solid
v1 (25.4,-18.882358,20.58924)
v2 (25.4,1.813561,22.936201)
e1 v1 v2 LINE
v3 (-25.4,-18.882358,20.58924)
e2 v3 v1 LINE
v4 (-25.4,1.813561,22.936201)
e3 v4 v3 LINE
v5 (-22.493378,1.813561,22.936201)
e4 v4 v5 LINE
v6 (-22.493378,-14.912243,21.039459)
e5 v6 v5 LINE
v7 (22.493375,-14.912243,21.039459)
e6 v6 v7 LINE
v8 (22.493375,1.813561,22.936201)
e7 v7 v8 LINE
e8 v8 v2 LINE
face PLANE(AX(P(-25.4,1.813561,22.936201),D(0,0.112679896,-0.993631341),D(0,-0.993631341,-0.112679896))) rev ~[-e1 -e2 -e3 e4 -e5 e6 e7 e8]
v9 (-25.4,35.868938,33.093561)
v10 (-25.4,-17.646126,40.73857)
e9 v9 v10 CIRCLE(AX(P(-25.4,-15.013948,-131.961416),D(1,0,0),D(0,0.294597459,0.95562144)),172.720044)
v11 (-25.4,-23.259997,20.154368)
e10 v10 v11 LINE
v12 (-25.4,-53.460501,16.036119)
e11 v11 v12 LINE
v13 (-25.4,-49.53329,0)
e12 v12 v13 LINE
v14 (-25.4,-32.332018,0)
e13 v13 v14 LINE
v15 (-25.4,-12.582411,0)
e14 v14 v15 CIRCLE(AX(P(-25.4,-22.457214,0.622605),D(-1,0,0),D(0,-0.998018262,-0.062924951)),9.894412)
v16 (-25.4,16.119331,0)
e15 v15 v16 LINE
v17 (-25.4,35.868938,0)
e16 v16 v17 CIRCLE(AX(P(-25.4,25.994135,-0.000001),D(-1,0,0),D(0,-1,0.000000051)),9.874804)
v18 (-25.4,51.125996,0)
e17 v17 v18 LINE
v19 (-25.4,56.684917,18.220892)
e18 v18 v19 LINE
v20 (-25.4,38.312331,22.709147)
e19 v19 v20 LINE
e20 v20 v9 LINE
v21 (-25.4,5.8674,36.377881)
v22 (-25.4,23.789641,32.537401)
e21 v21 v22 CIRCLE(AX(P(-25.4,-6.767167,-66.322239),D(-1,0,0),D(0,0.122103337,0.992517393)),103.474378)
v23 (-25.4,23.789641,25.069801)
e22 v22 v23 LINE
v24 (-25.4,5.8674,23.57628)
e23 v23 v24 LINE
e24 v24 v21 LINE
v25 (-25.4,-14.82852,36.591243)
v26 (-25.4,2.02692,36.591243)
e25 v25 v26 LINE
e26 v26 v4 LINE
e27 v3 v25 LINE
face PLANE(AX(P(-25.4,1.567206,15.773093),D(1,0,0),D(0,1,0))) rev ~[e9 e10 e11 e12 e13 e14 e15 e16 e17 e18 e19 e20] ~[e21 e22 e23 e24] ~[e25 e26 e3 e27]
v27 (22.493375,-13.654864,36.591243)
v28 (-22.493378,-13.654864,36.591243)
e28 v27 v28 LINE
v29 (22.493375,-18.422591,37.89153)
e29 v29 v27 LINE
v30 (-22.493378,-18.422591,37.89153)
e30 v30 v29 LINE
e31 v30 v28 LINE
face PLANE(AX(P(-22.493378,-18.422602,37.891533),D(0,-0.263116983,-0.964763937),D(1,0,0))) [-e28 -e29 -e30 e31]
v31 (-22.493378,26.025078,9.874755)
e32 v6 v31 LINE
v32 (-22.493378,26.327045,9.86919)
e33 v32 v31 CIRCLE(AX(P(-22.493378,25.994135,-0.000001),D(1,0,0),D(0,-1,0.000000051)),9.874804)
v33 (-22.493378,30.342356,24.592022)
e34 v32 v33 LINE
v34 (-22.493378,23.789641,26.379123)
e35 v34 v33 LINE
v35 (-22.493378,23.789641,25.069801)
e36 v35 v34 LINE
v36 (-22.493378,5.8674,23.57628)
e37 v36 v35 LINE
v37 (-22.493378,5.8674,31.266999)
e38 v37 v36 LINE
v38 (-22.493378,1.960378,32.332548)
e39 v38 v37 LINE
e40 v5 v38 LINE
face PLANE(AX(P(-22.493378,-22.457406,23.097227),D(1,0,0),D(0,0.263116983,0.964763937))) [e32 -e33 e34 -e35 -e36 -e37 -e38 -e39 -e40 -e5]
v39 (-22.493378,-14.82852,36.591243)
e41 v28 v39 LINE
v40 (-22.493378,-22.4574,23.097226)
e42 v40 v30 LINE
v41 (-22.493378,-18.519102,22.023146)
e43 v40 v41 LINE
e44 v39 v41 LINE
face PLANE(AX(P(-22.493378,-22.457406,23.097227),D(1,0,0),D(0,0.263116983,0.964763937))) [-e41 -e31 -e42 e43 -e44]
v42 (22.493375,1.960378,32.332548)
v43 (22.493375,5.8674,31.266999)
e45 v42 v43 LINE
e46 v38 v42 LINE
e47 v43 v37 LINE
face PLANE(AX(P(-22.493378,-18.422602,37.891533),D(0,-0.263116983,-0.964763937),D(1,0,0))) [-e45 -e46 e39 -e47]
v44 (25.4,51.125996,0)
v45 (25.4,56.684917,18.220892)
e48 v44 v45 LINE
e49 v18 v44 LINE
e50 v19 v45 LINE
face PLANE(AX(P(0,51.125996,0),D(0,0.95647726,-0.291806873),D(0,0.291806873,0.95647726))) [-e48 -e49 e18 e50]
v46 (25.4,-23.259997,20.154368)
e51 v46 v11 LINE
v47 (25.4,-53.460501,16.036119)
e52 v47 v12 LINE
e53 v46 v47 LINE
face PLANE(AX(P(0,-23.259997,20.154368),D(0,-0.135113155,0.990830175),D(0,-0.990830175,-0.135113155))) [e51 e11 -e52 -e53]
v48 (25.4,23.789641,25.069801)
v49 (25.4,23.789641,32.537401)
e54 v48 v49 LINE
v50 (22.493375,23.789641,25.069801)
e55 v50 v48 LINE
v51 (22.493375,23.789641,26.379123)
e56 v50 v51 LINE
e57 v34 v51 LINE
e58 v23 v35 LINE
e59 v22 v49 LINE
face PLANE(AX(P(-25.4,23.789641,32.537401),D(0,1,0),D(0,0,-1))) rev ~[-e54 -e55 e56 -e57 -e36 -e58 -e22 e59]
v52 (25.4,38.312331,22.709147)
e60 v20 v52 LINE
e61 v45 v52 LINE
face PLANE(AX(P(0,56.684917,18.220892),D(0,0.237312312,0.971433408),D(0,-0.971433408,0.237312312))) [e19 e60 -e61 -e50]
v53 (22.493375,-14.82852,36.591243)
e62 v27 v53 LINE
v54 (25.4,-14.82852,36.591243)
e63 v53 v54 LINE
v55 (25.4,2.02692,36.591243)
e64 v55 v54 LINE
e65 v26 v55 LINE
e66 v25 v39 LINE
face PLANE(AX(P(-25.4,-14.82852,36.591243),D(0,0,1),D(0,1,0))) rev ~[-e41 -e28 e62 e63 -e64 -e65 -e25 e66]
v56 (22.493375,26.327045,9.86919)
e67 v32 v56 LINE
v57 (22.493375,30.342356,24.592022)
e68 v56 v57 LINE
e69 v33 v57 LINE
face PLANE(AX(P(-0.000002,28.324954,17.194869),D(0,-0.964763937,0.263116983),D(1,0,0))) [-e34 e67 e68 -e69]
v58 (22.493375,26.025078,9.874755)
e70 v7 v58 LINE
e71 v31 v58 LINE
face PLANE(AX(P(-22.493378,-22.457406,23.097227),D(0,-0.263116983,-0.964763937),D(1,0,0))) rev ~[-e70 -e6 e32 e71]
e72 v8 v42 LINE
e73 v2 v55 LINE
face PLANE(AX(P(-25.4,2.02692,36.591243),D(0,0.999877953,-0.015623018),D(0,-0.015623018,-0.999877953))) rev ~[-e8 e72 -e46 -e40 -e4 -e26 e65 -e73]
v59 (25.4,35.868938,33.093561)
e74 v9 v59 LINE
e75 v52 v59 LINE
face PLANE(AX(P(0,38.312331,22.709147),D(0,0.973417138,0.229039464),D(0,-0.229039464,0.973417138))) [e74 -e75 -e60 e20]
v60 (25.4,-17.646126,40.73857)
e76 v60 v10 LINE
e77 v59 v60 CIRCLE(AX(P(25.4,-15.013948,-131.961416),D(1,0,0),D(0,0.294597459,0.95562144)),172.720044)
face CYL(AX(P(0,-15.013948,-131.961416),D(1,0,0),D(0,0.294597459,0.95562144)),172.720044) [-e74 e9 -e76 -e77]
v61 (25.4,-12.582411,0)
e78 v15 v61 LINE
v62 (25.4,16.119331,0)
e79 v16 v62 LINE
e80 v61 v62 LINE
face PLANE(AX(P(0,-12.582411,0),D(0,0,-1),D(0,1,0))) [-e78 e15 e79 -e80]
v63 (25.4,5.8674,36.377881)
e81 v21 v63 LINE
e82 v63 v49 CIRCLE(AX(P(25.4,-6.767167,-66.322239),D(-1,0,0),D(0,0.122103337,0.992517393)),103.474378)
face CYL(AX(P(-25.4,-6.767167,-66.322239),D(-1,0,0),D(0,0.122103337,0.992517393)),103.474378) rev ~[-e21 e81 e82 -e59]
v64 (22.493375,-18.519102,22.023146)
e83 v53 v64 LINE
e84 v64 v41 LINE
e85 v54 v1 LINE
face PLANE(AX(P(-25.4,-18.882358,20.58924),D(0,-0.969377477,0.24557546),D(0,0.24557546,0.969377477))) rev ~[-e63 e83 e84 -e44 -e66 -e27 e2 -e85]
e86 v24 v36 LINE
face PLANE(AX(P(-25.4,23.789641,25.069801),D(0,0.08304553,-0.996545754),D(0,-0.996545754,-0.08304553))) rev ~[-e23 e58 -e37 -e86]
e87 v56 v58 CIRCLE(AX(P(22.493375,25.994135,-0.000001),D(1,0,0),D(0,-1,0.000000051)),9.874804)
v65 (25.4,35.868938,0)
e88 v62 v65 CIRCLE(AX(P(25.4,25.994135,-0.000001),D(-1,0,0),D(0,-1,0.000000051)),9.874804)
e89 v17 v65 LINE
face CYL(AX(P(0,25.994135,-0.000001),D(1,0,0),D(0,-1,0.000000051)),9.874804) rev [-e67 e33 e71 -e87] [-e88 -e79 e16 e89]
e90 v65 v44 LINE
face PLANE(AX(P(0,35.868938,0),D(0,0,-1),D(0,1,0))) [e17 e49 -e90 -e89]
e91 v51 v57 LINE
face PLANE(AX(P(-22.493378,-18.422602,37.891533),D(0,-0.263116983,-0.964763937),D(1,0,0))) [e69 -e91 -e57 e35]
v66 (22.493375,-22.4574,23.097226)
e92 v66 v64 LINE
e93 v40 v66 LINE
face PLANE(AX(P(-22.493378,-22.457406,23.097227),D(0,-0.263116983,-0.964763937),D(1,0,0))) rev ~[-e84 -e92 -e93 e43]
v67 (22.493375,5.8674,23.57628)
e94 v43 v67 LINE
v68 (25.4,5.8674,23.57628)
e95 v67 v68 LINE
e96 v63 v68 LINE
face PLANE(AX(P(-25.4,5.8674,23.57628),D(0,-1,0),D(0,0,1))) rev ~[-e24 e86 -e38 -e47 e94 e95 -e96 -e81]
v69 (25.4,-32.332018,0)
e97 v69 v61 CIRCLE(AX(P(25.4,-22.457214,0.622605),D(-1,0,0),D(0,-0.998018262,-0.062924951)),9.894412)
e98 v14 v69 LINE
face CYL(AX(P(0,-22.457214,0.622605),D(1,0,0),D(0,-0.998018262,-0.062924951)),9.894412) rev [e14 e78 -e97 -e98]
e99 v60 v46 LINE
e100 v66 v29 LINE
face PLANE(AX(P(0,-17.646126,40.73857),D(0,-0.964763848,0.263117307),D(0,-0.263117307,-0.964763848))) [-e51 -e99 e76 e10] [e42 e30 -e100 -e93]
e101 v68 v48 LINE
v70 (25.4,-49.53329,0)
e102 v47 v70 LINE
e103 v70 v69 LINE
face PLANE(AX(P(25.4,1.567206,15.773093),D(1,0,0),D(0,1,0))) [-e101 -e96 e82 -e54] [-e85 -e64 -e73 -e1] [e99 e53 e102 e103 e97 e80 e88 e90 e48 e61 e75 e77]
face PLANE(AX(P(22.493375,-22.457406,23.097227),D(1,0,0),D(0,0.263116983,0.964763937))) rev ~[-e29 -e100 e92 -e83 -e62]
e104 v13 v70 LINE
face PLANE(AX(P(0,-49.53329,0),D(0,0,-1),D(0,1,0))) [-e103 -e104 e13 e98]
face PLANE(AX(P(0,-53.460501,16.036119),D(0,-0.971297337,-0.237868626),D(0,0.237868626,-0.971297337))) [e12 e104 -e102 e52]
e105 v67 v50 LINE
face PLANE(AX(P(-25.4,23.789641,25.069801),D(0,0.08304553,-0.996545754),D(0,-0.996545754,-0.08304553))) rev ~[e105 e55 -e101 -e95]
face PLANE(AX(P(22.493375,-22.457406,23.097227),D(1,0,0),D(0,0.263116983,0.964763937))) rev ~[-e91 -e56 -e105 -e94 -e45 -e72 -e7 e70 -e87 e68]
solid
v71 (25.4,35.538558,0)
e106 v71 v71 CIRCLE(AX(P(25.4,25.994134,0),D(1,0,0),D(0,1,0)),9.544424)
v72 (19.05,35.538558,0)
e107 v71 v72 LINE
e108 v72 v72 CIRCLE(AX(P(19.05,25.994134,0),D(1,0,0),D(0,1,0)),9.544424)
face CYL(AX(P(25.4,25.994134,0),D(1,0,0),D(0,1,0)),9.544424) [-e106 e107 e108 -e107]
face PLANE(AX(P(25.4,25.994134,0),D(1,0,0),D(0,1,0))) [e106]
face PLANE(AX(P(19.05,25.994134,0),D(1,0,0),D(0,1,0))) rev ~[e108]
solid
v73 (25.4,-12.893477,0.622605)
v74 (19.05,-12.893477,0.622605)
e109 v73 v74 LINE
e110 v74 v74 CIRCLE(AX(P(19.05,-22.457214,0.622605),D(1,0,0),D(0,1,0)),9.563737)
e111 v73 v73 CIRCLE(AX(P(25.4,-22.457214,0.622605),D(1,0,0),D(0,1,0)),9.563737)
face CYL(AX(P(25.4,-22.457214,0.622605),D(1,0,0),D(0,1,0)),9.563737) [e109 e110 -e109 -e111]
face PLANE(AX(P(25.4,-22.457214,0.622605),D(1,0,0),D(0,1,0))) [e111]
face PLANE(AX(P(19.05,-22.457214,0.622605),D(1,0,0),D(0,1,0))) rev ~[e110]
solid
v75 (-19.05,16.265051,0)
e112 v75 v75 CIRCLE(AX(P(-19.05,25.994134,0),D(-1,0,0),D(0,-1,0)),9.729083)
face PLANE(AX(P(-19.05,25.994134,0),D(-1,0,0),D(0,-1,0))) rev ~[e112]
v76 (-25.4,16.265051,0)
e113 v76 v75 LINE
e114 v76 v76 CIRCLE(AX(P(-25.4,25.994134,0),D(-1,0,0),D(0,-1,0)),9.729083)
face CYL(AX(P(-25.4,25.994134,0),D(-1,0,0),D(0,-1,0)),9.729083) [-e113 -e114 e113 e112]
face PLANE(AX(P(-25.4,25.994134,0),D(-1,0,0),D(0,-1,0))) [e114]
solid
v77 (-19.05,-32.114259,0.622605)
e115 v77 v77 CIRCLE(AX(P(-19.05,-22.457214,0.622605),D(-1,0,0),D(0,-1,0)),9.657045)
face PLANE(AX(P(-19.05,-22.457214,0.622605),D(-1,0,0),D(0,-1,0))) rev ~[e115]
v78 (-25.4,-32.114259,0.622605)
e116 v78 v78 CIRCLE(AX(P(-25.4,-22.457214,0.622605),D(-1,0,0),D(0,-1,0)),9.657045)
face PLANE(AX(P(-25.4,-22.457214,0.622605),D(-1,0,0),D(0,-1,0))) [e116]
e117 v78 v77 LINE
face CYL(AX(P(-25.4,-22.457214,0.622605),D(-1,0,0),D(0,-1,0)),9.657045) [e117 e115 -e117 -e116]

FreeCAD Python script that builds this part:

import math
import FreeCAD as App
import Part
import Sketcher
from FreeCAD import Vector
Q = App.Units.Quantity

doc = App.newDocument("Part")
body = doc.addObject("PartDesign::Body", "Body")

# Sketch on YZ plane
sketch1 = body.newObject("Sketcher::SketchObject", "Sketch")
sketch1.AttachmentSupport = (doc.getObject("YZ_Plane"), [""])
sketch1.MapMode = "FlatFace"
sketch1.addGeometry([
    Part.LineSegment(Vector(-53, 16, 0), Vector(-50, 0, 0)),  # 0
    Part.LineSegment(Vector(-50, 0, 0), Vector(-32, 0, 0)),  # 1
    Part.ArcOfCircle(Part.Circle(Vector(-22, 1, 0), Vector(0, 0, 1), 10), math.radians(-4), math.radians(184)),  # 2
    Part.LineSegment(Vector(-13, 0, 0), Vector(16, 0, 0)),  # 3
    Part.ArcOfCircle(Part.Circle(Vector(26, 0, 0), Vector(0, 0, 1), 10), math.radians(0), math.radians(180)),  # 4
    Part.LineSegment(Vector(36, 0, 0), Vector(51, 0, 0)),  # 5
    Part.LineSegment(Vector(51, 0, 0), Vector(57, 18, 0)),  # 6
    Part.LineSegment(Vector(57, 18, 0), Vector(38, 23, 0)),  # 7
    Part.LineSegment(Vector(38, 23, 0), Vector(36, 33, 0)),  # 8
    Part.ArcOfCircle(Part.Circle(Vector(-15, -132, 0), Vector(0, 0, 1), 173), math.radians(72.87), math.radians(90.87)),  # 9
    Part.LineSegment(Vector(-18, 41, 0), Vector(-23, 20, 0)),  # 10
    Part.LineSegment(Vector(-23, 20, 0), Vector(-53, 16, 0)),  # 11
], False)
sketch1.addConstraint([
    Sketcher.Constraint("Coincident", 0, 2, 1, 1),
    Sketcher.Constraint("Coincident", 1, 2, 2, 2),
    Sketcher.Constraint("Coincident", 2, 1, 3, 1),
    Sketcher.Constraint("Coincident", 3, 2, 4, 2),
    Sketcher.Constraint("Coincident", 4, 1, 5, 1),
    Sketcher.Constraint("Coincident", 5, 2, 6, 1),
    Sketcher.Constraint("Coincident", 6, 2, 7, 1),
    Sketcher.Constraint("Coincident", 7, 2, 8, 1),
    Sketcher.Constraint("Coincident", 8, 2, 9, 1),
    Sketcher.Constraint("Coincident", 9, 2, 10, 1),
    Sketcher.Constraint("Coincident", 10, 2, 11, 1),
    Sketcher.Constraint("Coincident", 11, 2, 0, 1),
    Sketcher.Constraint("Horizontal", 1),
    Sketcher.Constraint("Horizontal", 3),
    Sketcher.Constraint("Horizontal", 5),
    Sketcher.Constraint("PointOnObject", 4, 3, -1),
    Sketcher.Constraint("PointOnObject", 0, 2, -1),
    Sketcher.Constraint("PointOnObject", 2, 1, -1),
    Sketcher.Constraint("PointOnObject", 4, 1, -1),
    Sketcher.Constraint("Vertical", 4, 1, 8, 2),
    Sketcher.Constraint("Distance", 11, Q("1.2 in")),
    Sketcher.Constraint("Distance", 0, Q("0.65 in")),
    Sketcher.Constraint("Distance", 6, Q("0.75 in")),
    Sketcher.Constraint("Distance", 8, Q("0.42 in")),
    Sketcher.Constraint("Distance", 10, Q("0.84 in")),
    Sketcher.Constraint("Radius", 2, 9.894412),
    Sketcher.Constraint("Radius", 4, 9.874804),
    Sketcher.Constraint("Radius", 9, 172.720044),
    Sketcher.Constraint("DistanceX", 0, 2, 9, 2, Q("1.2554002 in")),
    Sketcher.Constraint("DistanceX", 3, 1, 3, 2, 28.701742),
    Sketcher.Constraint("DistanceX", 5, 1, 5, 2, 15.257058),
    Sketcher.Constraint("DistanceX", 11, 2, -1, 1, 53.460501),
    Sketcher.Constraint("DistanceX", 3, 2, 7, 2, 22.193),
    Sketcher.Constraint("DistanceX", 1, 1, 1, 2, 17.201272),
    Sketcher.Constraint("DistanceX", 9, 3, -1, 1, 15.013948),
    Sketcher.Constraint("DistanceX", 0, 2, -1, 1, 49.53329),
    Sketcher.Constraint("DistanceX", 2, 1, -1, 1, 12.582411),
    Sketcher.Constraint("DistanceY", -1, 1, 6, 2, 18.220892),
    Sketcher.Constraint("DistanceY", -1, 1, 8, 2, 33.093561),
])
pad1 = body.newObject("PartDesign::Pad", "Pad")
pad1.Profile = sketch1
pad1.Length = Q("2 in")
pad1.Midplane = True

# Sketch on an angled plane
sketch2 = body.newObject("Sketcher::SketchObject", "Sketch001")
sketch2.Placement = App.Placement(Vector(0, -26.765798, 7.299761), App.Rotation(Vector(1, 0, 0), Vector(0, 0.263116983, 0.964763937), Vector(0, -0.964763937, 0.263116983), "ZXY"))
sketch2.addGeometry([
    Part.LineSegment(Vector(-22, 32, 0), Vector(-22, 16, 0)),
    Part.LineSegment(Vector(-22, 16, 0), Vector(22, 16, 0)),
    Part.LineSegment(Vector(22, 16, 0), Vector(22, 32, 0)),
    Part.LineSegment(Vector(22, 32, 0), Vector(-22, 32, 0)),
], False)
sketch2.addConstraint([
    Sketcher.Constraint("Coincident", 0, 2, 1, 1),
    Sketcher.Constraint("Coincident", 1, 2, 2, 1),
    Sketcher.Constraint("Coincident", 2, 2, 3, 1),
    Sketcher.Constraint("Coincident", 3, 2, 0, 1),
    Sketcher.Constraint("Vertical", 0),
    Sketcher.Constraint("Horizontal", 1),
    Sketcher.Constraint("Vertical", 2),
    Sketcher.Constraint("Horizontal", 3),
    Sketcher.Constraint("DistanceY", 0, 2, 0, 1, 15.334638),
    Sketcher.Constraint("DistanceX", 1, 1, 1, 2, 44.986753),
    Sketcher.Constraint("DistanceX", 0, 2, -1, 1, 22.493378),
    Sketcher.Constraint("DistanceY", -1, 1, 0, 2, 16.374437),
])
pocket1 = body.newObject("PartDesign::Pocket", "Pocket")
pocket1.Profile = sketch2
pocket1.Length = Q("1.99 in")

# Sketch on YZ plane
sketch3 = body.newObject("Sketcher::SketchObject", "Sketch002")
sketch3.AttachmentSupport = (doc.getObject("YZ_Plane"), [""])
sketch3.MapMode = "FlatFace"
sketch3.AttachmentOffset = App.Placement(Vector(0, 0, -1 * 25.4), App.Rotation())
sketch3.addGeometry([
    Part.LineSegment(Vector(2, 37, 0), Vector(2, 23, 0)),  # 0
    Part.LineSegment(Vector(2, 23, 0), Vector(-19, 21, 0)),  # 1
    Part.LineSegment(Vector(-19, 21, 0), Vector(-15, 37, 0)),  # 2
    Part.LineSegment(Vector(-15, 37, 0), Vector(2, 37, 0)),  # 3
    Part.LineSegment(Vector(24, 25, 0), Vector(6, 24, 0)),  # 4
    Part.LineSegment(Vector(6, 24, 0), Vector(6, 36, 0)),  # 5
    Part.ArcOfCircle(Part.Circle(Vector(-7, -66, 0), Vector(0, 0, 1), 103), math.radians(72.82), math.radians(82.99)),  # 6
    Part.LineSegment(Vector(24, 33, 0), Vector(24, 25, 0)),  # 7
], False)
sketch3.addConstraint([
    Sketcher.Constraint("Coincident", 0, 2, 1, 1),
    Sketcher.Constraint("Coincident", 1, 2, 2, 1),
    Sketcher.Constraint("Coincident", 2, 2, 3, 1),
    Sketcher.Constraint("Coincident", 3, 2, 0, 1),
    Sketcher.Constraint("Coincident", 4, 2, 5, 1),
    Sketcher.Constraint("Coincident", 5, 2, 6, 2),
    Sketcher.Constraint("Coincident", 6, 1, 7, 1),
    Sketcher.Constraint("Coincident", 7, 2, 4, 1),
    Sketcher.Constraint("Horizontal", 3),
    Sketcher.Constraint("Vertical", 5),
    Sketcher.Constraint("Vertical", 7),
    Sketcher.Constraint("DistanceY", 5, 1, 5, 2, Q("0.504 in")),
    Sketcher.Constraint("DistanceY", 7, 2, 7, 1, Q("0.294 in")),
    Sketcher.Constraint("DistanceY", 1, 2, 2, 2, Q("0.6300001 in")),
    Sketcher.Constraint("DistanceX", 3, 1, 3, 2, Q("0.6636 in")),
    Sketcher.Constraint("DistanceY", -1, 1, 0, 2, Q("0.903 in")),
    Sketcher.Constraint("DistanceX", -1, 1, 4, 2, Q("0.231 in")),
    Sketcher.Constraint("DistanceY", -1, 1, 6, 1, Q("1.281 in")),
    Sketcher.Constraint("Radius", 6, 103.474378),
    Sketcher.Constraint("DistanceX", -1, 1, 0, 2, Q("0.0714 in")),
    Sketcher.Constraint("DistanceX", 1, 2, -1, 1, Q("0.7433999 in")),
    Sketcher.Constraint("DistanceY", -1, 1, 1, 2, Q("0.8106 in")),
    Sketcher.Constraint("DistanceX", 2, 2, -1, 1, Q("0.5838 in")),
    Sketcher.Constraint("DistanceY", -1, 1, 4, 2, Q("0.9282 in")),
    Sketcher.Constraint("DistanceX", -1, 1, 6, 1, Q("0.9366 in")),
])
pocket2 = body.newObject("PartDesign::Pocket", "Pocket001")
pocket2.Profile = sketch3
pocket2.Length = Q("2.35 in")
pocket2.Reversed = True
body2 = doc.addObject("PartDesign::Body", "Body001")
body2.AllowCompound = True

# Sketch on YZ plane
sketch4 = body2.newObject("Sketcher::SketchObject", "Sketch003")
sketch4.AttachmentSupport = (doc.getObject("YZ_Plane001"), [""])
sketch4.MapMode = "FlatFace"
sketch4.AttachmentOffset = App.Placement(Vector(0, 0, 1 * 25.4), App.Rotation())
sketch4.addGeometry([
    Part.Circle(Vector(-22, 1, 0), Vector(0, 0, 1), 10),
    Part.Circle(Vector(26, 0, 0), Vector(0, 0, 1), 10),
], False)
sketch4.addConstraint([
    Sketcher.Constraint("PointOnObject", 1, 3, -1),
    Sketcher.Constraint("Diameter", 0, 19.127474),
    Sketcher.Constraint("Diameter", 1, 19.088848),
    Sketcher.Constraint("DistanceX", 0, 3, -1, 1, 22.457214),
    Sketcher.Constraint("DistanceY", -1, 1, 0, 3, 0.622605),
    Sketcher.Constraint("DistanceX", -1, 1, 1, 3, 25.994134),
])
pad2 = body2.newObject("PartDesign::Pad", "Pad001")
pad2.Profile = sketch4
pad2.Length = Q("0.25 in")
pad2.Reversed = True
body3 = doc.addObject("PartDesign::Body", "Body002")
body3.AllowCompound = True

# Sketch on YZ plane
sketch5 = body3.newObject("Sketcher::SketchObject", "Sketch004")
sketch5.AttachmentSupport = (doc.getObject("YZ_Plane002"), [""])
sketch5.MapMode = "FlatFace"
sketch5.AttachmentOffset = App.Placement(Vector(0, 0, -1 * 25.4), App.Rotation())
sketch5.addGeometry([
    Part.Circle(Vector(26, 0, 0), Vector(0, 0, 1), 10),
    Part.Circle(Vector(-22, 1, 0), Vector(0, 0, 1), 10),
], False)
sketch5.addConstraint([
    Sketcher.Constraint("PointOnObject", 0, 3, -1),
    Sketcher.Constraint("Diameter", 1, 19.31409),
    Sketcher.Constraint("Diameter", 0, 19.458166),
    Sketcher.Constraint("DistanceX", -1, 1, 0, 3, 25.994134),
    Sketcher.Constraint("DistanceX", 1, 3, -1, 1, 22.457214),
    Sketcher.Constraint("DistanceY", -1, 1, 1, 3, 0.622605),
])
pad3 = body3.newObject("PartDesign::Pad", "Pad002")
pad3.Profile = sketch5
pad3.Length = Q("0.25 in")

doc.recompute()
